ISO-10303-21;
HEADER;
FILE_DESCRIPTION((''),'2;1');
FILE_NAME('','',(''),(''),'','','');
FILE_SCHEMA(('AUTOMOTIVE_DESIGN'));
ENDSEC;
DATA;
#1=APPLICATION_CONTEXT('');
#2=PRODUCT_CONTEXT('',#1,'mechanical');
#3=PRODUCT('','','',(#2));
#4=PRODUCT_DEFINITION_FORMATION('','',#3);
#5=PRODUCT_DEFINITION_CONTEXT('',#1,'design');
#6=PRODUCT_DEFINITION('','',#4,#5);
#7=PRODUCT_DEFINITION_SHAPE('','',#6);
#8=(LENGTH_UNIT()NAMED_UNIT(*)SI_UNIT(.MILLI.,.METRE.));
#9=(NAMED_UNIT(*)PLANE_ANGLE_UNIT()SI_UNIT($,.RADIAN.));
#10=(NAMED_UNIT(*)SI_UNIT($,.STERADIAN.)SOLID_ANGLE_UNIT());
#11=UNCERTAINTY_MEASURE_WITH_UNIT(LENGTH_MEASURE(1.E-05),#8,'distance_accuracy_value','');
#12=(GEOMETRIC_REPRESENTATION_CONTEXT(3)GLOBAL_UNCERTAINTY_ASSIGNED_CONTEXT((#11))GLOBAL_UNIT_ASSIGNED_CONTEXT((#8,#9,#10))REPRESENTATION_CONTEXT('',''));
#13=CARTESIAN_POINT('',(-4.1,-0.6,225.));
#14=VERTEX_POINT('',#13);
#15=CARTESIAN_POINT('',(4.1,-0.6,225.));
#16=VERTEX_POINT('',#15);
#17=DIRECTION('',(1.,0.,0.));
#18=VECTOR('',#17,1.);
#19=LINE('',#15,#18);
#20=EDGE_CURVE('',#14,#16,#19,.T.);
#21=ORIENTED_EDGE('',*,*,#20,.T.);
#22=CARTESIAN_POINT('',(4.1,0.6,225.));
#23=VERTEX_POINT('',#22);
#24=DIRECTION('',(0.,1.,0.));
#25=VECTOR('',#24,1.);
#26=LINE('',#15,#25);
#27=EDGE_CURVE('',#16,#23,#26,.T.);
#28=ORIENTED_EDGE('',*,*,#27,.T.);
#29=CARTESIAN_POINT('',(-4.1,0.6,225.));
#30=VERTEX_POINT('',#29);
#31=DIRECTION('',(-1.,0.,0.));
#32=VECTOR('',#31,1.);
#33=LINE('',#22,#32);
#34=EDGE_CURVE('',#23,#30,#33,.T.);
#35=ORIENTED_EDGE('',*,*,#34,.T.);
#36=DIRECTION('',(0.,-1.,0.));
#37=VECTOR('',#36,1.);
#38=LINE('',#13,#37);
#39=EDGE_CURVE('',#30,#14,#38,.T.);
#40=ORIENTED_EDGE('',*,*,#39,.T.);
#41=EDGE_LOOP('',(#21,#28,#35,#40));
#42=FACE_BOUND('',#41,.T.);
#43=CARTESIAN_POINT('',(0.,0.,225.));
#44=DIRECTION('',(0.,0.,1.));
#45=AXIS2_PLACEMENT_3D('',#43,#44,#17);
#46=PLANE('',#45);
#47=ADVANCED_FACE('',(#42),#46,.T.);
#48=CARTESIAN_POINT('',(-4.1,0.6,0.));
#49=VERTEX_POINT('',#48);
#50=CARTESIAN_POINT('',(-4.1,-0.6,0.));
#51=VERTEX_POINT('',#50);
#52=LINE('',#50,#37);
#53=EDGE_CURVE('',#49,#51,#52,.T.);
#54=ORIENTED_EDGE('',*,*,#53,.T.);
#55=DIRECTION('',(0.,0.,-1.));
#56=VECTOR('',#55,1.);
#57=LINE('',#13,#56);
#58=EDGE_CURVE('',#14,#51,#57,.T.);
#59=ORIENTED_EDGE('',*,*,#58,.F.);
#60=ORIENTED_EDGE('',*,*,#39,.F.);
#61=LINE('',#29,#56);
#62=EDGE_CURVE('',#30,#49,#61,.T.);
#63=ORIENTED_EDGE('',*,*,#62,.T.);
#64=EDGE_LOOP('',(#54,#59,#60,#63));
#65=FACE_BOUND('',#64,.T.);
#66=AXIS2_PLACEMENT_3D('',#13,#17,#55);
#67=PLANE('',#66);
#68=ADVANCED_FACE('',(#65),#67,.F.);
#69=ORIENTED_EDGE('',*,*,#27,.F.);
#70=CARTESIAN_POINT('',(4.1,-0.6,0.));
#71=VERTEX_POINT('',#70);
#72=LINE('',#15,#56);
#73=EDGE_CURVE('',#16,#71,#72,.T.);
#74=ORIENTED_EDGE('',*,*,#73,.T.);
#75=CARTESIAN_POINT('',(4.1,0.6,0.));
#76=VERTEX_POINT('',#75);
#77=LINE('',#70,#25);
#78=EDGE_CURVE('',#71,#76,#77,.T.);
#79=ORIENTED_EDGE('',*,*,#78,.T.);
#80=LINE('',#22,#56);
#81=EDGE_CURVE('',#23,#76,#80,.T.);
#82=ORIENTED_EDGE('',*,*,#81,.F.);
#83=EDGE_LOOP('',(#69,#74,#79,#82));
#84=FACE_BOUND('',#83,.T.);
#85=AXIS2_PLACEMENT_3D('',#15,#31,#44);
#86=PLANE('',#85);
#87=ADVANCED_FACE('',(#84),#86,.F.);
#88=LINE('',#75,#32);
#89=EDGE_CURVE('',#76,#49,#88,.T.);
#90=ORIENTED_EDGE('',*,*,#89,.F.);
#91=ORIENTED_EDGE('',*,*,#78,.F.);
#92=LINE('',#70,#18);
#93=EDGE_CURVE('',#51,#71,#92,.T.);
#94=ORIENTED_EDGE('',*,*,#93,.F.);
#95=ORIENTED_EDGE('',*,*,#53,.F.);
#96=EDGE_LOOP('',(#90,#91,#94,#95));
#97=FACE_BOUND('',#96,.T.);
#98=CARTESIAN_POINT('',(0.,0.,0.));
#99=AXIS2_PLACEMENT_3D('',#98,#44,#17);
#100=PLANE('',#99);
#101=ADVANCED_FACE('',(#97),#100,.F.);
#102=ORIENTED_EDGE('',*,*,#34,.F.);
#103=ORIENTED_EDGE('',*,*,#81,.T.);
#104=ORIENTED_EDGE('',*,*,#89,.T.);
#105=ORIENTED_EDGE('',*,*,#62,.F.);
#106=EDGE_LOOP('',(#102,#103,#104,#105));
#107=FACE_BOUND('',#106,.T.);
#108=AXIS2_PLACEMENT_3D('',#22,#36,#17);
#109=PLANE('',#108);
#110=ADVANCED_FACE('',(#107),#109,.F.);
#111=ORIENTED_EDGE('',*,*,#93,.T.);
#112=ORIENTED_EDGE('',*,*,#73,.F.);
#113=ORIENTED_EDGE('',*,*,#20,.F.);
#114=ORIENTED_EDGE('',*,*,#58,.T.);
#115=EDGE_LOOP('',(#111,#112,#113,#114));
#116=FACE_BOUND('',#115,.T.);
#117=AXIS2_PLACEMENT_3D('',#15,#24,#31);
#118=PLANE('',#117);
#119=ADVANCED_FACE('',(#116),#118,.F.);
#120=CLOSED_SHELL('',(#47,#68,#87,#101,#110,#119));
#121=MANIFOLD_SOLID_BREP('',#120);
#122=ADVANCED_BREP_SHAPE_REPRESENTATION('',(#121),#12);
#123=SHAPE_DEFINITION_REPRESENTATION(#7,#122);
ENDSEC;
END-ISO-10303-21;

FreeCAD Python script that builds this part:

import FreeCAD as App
import Part
import Sketcher

V = App.Vector
Q = App.Units.Quantity

doc = App.newDocument("Part")
params = doc.addObject("Spreadsheet::Sheet", "Params")
for row, (alias, value) in enumerate([
    ("sketch1_width", "8.2 mm"),
    ("sketch1_height", "1.2 mm"),
    ("pad1_length", "225 mm"),
], start=1):
    params.set(f"A{row}", alias)
    params.set(f"B{row}", "=" + value)
    params.setAlias(f"B{row}", alias)

body = doc.addObject("PartDesign::Body", "Body")

# Sketch on XY plane
sketch1 = body.newObject("Sketcher::SketchObject", "Sketch")
sketch1.AttachmentSupport = (doc.getObject("XY_Plane"), [""])
sketch1.MapMode = "FlatFace"
sketch1.addGeometry(Part.LineSegment(V(-4.1, 0.6, 0), V(-4.1, -0.6, 0)), False)
sketch1.addGeometry(Part.LineSegment(V(-4.1, -0.6, 0), V(4.1, -0.6, 0)), False)
sketch1.addGeometry(Part.LineSegment(V(4.1, -0.6, 0), V(4.1, 0.6, 0)), False)
sketch1.addGeometry(Part.LineSegment(V(4.1, 0.6, 0), V(-4.1, 0.6, 0)), False)
sketch1.addConstraint(Sketcher.Constraint("Coincident", 0, 2, 1, 1))
sketch1.addConstraint(Sketcher.Constraint("Coincident", 1, 2, 2, 1))
sketch1.addConstraint(Sketcher.Constraint("Coincident", 2, 2, 3, 1))
sketch1.addConstraint(Sketcher.Constraint("Coincident", 3, 2, 0, 1))
sketch1.addConstraint(Sketcher.Constraint("Vertical", 0))
sketch1.addConstraint(Sketcher.Constraint("Horizontal", 1))
sketch1.addConstraint(Sketcher.Constraint("Vertical", 2))
sketch1.addConstraint(Sketcher.Constraint("Horizontal", 3))
sketch1.addConstraint(Sketcher.Constraint("Symmetric", 0, 2, 2, 2, -1, 1))
sketch1.addConstraint(Sketcher.Constraint("DistanceX", 1, 1, 1, 2, Q("8.2 mm")))
sketch1.addConstraint(Sketcher.Constraint("DistanceY", 0, 2, 0, 1, Q("1.2 mm")))
sketch1.setExpression("Constraints[9]", "Params.sketch1_width")
sketch1.setExpression("Constraints[10]", "Params.sketch1_height")
pad1 = body.newObject("PartDesign::Pad", "Pad")
pad1.Profile = sketch1
pad1.setExpression("Length", "Params.pad1_length")

doc.recompute()
